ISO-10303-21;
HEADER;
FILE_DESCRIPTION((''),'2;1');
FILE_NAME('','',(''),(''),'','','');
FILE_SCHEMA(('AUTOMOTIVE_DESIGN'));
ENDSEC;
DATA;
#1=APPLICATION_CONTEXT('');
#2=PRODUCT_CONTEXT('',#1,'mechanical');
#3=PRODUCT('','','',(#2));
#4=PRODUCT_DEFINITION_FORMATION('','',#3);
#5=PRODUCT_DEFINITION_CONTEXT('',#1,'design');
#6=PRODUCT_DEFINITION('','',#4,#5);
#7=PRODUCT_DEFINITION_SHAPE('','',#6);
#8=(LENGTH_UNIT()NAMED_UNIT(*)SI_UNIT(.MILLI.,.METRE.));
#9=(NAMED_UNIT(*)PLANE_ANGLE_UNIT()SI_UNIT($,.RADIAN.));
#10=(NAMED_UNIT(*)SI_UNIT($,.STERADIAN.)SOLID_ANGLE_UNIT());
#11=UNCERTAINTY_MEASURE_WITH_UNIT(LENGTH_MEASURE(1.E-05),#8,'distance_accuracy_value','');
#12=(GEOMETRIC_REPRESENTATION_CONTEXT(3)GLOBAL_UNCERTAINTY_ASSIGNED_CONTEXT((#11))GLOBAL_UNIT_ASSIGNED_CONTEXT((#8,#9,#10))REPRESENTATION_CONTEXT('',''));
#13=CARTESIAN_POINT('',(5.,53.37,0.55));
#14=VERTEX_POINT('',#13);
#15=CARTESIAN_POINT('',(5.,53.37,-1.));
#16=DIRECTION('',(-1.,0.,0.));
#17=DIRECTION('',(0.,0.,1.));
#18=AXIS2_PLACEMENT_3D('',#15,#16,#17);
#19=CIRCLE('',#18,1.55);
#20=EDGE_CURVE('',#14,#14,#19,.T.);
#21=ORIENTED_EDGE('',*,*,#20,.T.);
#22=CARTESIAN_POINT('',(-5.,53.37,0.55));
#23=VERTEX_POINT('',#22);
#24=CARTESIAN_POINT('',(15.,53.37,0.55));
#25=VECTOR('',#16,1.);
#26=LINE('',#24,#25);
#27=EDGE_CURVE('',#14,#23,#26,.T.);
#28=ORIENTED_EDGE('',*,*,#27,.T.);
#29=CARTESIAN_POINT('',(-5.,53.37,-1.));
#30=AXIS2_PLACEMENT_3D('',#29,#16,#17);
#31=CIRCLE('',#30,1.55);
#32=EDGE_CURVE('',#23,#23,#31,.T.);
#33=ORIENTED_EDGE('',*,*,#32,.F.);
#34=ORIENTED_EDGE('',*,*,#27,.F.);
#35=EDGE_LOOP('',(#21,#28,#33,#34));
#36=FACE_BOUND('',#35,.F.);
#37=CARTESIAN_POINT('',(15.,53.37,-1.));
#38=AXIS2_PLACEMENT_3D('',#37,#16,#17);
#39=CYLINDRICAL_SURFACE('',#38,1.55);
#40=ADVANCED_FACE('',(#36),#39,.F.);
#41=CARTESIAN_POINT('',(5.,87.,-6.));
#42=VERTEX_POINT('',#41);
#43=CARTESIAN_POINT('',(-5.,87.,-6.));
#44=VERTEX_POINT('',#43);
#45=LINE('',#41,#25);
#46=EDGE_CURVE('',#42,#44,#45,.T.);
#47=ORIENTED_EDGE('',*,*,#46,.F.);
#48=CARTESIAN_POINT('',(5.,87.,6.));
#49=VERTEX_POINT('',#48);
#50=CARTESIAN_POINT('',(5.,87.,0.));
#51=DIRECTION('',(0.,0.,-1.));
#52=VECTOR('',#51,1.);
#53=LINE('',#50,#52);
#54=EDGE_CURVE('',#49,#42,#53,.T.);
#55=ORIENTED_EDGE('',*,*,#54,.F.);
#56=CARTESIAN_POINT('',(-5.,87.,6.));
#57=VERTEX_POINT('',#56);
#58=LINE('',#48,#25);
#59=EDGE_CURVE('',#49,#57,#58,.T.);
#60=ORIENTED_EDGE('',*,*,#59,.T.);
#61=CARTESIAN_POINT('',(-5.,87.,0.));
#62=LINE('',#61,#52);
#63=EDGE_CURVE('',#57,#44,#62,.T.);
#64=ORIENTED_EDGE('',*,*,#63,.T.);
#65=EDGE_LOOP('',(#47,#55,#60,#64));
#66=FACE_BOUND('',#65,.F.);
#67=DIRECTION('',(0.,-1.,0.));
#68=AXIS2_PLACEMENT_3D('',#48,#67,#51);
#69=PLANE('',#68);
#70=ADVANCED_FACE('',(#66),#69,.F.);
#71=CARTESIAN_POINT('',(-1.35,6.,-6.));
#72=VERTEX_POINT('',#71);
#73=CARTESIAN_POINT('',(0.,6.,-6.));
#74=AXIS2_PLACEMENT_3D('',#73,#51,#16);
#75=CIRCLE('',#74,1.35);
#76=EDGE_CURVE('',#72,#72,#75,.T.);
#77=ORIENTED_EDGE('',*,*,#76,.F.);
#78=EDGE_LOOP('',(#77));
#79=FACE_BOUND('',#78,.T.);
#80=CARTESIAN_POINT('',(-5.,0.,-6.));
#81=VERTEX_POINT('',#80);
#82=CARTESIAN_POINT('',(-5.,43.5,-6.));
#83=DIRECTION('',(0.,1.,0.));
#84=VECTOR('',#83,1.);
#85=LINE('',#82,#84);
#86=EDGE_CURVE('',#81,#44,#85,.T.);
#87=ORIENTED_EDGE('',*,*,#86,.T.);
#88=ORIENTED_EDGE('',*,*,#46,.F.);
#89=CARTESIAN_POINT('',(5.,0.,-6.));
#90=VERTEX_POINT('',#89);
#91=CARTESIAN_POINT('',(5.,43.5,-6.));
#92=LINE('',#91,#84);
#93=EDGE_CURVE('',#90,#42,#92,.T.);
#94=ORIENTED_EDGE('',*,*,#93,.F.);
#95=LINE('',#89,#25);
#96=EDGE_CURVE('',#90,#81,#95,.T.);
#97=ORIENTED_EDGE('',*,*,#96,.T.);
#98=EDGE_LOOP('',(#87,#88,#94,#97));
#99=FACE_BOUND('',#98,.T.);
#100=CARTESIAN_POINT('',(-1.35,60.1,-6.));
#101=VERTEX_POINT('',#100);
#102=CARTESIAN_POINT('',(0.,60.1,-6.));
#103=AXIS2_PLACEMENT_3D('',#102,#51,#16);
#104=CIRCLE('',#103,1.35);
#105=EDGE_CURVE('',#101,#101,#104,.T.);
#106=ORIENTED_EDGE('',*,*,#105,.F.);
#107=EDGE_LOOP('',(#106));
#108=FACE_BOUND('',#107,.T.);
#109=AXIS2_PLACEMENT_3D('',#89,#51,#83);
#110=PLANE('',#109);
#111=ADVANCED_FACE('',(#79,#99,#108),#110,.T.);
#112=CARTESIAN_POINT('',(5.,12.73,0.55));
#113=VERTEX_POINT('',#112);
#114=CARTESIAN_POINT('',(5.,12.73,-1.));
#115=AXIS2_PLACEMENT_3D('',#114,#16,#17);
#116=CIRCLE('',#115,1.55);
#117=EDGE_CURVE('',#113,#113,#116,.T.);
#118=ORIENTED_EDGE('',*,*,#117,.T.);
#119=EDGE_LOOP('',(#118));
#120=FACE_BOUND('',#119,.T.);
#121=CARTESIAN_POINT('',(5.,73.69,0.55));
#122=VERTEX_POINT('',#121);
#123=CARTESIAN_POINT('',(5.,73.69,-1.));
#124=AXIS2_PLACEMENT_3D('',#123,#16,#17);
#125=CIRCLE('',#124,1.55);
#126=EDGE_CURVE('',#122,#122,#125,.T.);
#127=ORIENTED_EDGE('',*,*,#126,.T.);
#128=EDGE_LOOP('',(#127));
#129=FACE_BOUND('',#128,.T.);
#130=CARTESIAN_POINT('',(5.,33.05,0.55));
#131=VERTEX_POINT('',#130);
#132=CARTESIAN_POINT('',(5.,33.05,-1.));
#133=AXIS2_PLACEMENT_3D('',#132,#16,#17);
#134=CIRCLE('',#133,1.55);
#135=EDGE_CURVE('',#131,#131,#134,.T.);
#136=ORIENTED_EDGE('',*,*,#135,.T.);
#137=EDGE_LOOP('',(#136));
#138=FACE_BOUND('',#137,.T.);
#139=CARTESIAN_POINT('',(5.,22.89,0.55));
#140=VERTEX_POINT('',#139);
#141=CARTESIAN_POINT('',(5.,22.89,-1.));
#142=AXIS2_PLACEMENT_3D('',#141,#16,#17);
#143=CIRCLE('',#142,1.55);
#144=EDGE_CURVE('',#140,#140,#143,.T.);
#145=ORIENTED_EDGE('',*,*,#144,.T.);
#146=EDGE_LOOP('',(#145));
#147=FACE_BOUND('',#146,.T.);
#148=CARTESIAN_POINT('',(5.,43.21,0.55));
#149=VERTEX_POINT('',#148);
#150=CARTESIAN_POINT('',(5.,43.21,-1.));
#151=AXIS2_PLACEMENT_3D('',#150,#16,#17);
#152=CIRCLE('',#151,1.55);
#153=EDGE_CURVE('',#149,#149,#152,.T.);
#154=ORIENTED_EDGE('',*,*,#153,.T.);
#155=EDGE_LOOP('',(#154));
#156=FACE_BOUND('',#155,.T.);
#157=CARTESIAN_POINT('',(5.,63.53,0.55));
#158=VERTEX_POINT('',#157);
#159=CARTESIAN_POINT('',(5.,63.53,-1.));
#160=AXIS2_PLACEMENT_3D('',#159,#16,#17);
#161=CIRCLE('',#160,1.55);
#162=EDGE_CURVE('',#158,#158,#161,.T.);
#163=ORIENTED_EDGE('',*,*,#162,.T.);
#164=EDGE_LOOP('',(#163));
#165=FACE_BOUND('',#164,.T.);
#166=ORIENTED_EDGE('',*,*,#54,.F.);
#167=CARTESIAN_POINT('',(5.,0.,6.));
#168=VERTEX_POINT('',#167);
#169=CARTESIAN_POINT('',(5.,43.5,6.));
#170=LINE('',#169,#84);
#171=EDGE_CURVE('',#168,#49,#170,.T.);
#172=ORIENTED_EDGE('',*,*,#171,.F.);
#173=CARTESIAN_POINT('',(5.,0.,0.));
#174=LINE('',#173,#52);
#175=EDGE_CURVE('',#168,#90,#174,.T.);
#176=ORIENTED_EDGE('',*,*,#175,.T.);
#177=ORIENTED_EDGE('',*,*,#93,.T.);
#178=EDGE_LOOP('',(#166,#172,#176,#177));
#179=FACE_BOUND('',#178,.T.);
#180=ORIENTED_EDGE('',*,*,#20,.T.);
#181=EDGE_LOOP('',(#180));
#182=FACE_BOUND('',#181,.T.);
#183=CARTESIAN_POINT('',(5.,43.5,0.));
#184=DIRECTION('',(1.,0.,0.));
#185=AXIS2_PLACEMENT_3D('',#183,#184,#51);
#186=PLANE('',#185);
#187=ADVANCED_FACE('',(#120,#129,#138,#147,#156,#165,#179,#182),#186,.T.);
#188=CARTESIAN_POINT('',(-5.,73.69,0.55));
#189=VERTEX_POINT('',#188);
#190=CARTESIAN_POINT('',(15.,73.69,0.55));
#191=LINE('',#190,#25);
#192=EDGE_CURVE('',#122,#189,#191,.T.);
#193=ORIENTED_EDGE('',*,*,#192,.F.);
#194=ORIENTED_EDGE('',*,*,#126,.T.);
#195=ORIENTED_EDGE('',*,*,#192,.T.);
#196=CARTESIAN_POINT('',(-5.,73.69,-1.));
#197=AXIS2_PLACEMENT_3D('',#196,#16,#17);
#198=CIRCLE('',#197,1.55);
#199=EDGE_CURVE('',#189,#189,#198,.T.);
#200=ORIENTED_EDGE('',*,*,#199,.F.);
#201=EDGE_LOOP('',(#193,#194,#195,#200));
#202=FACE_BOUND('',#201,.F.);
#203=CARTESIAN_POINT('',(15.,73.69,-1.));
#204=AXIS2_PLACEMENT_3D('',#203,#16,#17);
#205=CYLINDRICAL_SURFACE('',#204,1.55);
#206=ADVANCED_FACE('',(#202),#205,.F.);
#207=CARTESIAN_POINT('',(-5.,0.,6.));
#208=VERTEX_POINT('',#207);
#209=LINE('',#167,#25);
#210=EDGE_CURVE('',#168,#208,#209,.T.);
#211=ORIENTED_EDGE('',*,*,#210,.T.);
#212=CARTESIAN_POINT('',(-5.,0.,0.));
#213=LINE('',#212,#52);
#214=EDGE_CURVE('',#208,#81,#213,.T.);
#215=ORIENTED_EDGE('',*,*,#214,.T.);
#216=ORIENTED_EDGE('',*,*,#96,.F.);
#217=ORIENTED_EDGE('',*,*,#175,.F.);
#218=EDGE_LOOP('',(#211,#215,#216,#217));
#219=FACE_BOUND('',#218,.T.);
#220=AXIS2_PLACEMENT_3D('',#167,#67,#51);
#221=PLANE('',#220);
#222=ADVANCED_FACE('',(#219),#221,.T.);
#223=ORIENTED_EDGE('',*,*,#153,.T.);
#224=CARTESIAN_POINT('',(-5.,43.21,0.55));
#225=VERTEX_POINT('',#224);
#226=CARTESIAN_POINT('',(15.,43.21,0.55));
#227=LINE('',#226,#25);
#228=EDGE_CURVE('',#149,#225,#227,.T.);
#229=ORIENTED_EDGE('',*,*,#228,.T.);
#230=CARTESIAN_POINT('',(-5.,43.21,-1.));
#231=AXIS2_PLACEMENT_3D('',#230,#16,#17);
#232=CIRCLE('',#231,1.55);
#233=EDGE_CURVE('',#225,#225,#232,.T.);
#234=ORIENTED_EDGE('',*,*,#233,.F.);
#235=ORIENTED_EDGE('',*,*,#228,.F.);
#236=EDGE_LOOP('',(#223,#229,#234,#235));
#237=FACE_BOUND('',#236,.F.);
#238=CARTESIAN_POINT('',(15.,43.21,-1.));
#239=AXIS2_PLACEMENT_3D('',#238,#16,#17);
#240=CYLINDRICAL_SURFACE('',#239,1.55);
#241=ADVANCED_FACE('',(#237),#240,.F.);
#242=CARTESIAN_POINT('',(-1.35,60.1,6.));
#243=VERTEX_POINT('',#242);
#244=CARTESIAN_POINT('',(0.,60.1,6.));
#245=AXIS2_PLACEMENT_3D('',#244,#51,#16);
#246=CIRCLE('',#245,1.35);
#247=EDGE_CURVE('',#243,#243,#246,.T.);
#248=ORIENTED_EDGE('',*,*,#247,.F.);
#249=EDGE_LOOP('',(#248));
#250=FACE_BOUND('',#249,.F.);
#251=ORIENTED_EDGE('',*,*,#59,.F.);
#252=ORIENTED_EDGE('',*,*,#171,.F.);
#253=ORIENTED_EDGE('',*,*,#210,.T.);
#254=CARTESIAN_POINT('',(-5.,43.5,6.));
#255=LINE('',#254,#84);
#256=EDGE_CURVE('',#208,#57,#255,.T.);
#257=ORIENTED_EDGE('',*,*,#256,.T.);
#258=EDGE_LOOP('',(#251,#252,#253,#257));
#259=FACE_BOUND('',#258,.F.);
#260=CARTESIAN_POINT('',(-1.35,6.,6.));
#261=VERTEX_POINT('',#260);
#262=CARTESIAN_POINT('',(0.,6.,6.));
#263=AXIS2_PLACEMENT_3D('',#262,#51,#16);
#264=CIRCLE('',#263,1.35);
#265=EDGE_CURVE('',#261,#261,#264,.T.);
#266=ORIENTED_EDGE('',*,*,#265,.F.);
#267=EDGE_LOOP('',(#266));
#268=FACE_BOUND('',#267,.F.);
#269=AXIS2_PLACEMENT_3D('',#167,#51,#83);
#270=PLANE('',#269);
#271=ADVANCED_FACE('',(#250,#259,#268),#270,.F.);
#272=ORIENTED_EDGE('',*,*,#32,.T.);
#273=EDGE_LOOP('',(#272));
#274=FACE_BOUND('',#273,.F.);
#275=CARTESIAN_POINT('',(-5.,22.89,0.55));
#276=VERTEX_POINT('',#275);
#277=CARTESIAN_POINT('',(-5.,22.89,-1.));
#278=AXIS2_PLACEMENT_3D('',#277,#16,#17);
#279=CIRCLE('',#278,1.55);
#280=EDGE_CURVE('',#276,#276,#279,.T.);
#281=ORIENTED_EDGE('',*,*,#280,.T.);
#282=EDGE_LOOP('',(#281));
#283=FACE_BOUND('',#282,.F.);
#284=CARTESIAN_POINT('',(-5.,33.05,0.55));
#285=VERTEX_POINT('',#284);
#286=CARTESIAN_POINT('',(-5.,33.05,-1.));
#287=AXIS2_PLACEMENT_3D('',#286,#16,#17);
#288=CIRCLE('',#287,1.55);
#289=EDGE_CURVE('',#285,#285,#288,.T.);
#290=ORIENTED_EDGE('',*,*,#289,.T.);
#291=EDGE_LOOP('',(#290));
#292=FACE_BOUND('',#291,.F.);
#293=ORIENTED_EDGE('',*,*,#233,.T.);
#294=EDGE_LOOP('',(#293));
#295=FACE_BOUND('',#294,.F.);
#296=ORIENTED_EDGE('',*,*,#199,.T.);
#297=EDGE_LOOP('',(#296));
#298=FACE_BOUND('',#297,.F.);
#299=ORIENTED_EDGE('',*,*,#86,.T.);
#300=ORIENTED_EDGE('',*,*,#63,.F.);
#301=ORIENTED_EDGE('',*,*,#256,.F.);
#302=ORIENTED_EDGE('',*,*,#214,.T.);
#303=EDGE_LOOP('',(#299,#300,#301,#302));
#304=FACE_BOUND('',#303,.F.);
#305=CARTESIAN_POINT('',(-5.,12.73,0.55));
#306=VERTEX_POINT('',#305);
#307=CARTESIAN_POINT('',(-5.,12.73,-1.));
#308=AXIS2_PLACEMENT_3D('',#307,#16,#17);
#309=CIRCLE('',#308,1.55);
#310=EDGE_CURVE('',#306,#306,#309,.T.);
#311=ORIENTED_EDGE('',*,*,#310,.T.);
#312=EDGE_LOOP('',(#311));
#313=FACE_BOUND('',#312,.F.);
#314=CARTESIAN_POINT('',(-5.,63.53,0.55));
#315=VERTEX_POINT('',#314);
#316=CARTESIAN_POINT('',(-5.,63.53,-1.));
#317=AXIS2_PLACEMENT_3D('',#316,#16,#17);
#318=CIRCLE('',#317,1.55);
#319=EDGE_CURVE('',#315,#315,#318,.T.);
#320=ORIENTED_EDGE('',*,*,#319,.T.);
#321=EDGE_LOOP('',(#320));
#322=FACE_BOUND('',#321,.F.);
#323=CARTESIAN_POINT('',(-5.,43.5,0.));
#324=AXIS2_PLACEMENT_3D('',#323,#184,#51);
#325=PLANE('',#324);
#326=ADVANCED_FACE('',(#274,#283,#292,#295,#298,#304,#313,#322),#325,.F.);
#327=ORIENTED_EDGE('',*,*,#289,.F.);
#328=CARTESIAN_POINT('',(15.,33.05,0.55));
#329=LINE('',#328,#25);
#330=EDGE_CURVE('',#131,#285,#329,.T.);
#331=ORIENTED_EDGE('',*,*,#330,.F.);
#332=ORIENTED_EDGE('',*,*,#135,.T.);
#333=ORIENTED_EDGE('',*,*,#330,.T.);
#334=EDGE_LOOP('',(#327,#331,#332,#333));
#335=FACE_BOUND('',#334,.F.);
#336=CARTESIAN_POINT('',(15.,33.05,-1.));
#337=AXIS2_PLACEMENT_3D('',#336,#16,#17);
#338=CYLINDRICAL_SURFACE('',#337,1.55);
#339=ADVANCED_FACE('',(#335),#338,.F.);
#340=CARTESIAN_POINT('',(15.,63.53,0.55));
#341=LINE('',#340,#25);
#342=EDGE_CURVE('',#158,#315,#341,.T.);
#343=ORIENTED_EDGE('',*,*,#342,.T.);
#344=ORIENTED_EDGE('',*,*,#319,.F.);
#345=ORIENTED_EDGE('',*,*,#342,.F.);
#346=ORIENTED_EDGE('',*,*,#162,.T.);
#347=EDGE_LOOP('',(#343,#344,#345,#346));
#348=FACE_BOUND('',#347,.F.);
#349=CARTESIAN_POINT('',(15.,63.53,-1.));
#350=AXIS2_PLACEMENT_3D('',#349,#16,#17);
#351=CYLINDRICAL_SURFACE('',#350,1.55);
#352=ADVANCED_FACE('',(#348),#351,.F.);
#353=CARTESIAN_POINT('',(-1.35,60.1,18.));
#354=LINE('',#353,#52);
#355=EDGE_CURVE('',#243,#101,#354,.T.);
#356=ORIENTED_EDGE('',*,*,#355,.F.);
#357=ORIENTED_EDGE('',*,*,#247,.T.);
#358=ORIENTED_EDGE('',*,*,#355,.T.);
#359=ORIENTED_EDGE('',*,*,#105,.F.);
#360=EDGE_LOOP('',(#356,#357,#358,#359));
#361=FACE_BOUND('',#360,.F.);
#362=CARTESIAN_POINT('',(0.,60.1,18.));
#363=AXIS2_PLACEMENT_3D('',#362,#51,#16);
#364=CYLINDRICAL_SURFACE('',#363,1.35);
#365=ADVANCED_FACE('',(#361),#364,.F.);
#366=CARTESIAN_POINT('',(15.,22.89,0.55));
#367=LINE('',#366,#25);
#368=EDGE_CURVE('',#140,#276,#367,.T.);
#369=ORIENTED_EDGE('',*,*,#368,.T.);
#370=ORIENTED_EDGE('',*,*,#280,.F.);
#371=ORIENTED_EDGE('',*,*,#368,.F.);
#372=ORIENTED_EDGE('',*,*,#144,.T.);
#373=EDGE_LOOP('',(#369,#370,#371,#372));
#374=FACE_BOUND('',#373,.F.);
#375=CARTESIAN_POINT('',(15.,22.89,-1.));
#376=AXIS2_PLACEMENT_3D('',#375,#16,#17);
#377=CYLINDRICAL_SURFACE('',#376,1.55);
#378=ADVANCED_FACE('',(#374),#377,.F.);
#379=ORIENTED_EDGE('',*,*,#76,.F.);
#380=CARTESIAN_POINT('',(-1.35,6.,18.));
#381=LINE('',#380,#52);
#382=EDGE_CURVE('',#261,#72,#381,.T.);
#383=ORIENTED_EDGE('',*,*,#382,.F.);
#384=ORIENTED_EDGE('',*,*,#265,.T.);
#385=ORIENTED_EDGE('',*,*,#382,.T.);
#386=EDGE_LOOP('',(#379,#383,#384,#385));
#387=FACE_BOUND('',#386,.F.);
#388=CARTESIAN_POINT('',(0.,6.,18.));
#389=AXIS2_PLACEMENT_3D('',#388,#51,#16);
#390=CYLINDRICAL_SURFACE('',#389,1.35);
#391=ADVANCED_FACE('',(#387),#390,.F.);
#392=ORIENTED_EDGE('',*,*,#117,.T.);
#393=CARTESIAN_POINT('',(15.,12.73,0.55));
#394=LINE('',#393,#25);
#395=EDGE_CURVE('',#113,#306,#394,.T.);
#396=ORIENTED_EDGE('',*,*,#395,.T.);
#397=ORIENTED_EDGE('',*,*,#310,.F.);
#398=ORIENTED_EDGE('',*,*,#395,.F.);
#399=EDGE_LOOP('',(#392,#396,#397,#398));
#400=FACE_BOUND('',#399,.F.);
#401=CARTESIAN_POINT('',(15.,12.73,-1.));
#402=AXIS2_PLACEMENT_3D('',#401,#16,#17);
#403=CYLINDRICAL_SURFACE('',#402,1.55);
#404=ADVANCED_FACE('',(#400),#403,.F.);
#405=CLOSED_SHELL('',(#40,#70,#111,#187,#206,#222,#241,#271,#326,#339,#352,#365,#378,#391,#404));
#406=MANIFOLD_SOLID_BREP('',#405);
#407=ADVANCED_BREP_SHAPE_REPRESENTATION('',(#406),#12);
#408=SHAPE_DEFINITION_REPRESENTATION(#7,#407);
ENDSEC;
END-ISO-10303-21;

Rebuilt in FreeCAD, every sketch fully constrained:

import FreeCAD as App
import Part
import Sketcher

V = App.Vector
Q = App.Units.Quantity

doc = App.newDocument("Part")
body = doc.addObject("PartDesign::Body", "Body")

# Sketch on YZ plane
sketch1 = doc.addObject("Sketcher::SketchObject", "Sketch")
body.addObject(sketch1)
sketch1.AttachmentSupport = (doc.YZ_Plane, [""])
sketch1.MapMode = "FlatFace"
sketch1.AttachmentOffset = App.Placement(V(0, 0, 5), App.Rotation())
sketch1.addGeometry(Part.LineSegment(V(87, 6, 0), V(0, 6, 0)), False)
sketch1.addGeometry(Part.LineSegment(V(0, 6, 0), V(0, -6, 0)), False)
sketch1.addGeometry(Part.LineSegment(V(0, -6, 0), V(87, -6, 0)), False)
sketch1.addGeometry(Part.LineSegment(V(87, -6, 0), V(87, 6, 0)), False)
sketch1.addConstraint(Sketcher.Constraint("Coincident", 0, 2, 1, 1))
sketch1.addConstraint(Sketcher.Constraint("Coincident", 1, 2, 2, 1))
sketch1.addConstraint(Sketcher.Constraint("Coincident", 2, 2, 3, 1))
sketch1.addConstraint(Sketcher.Constraint("Coincident", 3, 2, 0, 1))
sketch1.addConstraint(Sketcher.Constraint("Horizontal", 0))
sketch1.addConstraint(Sketcher.Constraint("Vertical", 1))
sketch1.addConstraint(Sketcher.Constraint("Horizontal", 2))
sketch1.addConstraint(Sketcher.Constraint("Vertical", 3))
sketch1.addConstraint(Sketcher.Constraint("Symmetric", 0, 2, 1, 2, -1, 1))
sketch1.addConstraint(Sketcher.Constraint("DistanceX", 0, 2, 0, 1, Q("87 mm")))
sketch1.addConstraint(Sketcher.Constraint("DistanceY", 1, 2, 1, 1, Q("12 mm")))
pad1 = doc.addObject("PartDesign::Pad", "Pad")
body.addObject(pad1)
pad1.Profile = sketch1
pad1.Length = 10
pad1.Reversed = True

# Sketch on YZ plane
sketch2 = doc.addObject("Sketcher::SketchObject", "Sketch001")
body.addObject(sketch2)
sketch2.AttachmentSupport = (doc.YZ_Plane, [""])
sketch2.MapMode = "FlatFace"
sketch2.AttachmentOffset = App.Placement(V(0, 0, 5), App.Rotation())
sketch2.addGeometry(Part.Circle(V(63.53, -1, 0), V(0, 0, 1), 1.55), False)
sketch2.addGeometry(Part.Circle(V(43.21, -1, 0), V(0, 0, 1), 1.55), False)
sketch2.addGeometry(Part.Circle(V(22.89, -1, 0), V(0, 0, 1), 1.55), False)
sketch2.addGeometry(Part.Circle(V(53.37, -1, 0), V(0, 0, 1), 1.55), False)
sketch2.addGeometry(Part.Circle(V(33.05, -1, 0), V(0, 0, 1), 1.55), False)
sketch2.addGeometry(Part.Circle(V(12.73, -1, 0), V(0, 0, 1), 1.55), False)
sketch2.addGeometry(Part.Circle(V(73.69, -1, 0), V(0, 0, 1), 1.55), False)
sketch2.addConstraint(Sketcher.Constraint("Equal", 0, 1))
sketch2.addConstraint(Sketcher.Constraint("Equal", 1, 2))
sketch2.addConstraint(Sketcher.Constraint("Equal", 2, 3))
sketch2.addConstraint(Sketcher.Constraint("Equal", 3, 4))
sketch2.addConstraint(Sketcher.Constraint("Equal", 4, 5))
sketch2.addConstraint(Sketcher.Constraint("Equal", 5, 6))
sketch2.addConstraint(Sketcher.Constraint("Horizontal", 0, 3, 1, 3))
sketch2.addConstraint(Sketcher.Constraint("Horizontal", 1, 3, 2, 3))
sketch2.addConstraint(Sketcher.Constraint("Horizontal", 2, 3, 3, 3))
sketch2.addConstraint(Sketcher.Constraint("Horizontal", 3, 3, 4, 3))
sketch2.addConstraint(Sketcher.Constraint("Horizontal", 4, 3, 5, 3))
sketch2.addConstraint(Sketcher.Constraint("Horizontal", 5, 3, 6, 3))
sketch2.addConstraint(Sketcher.Constraint("Diameter", 0, Q("3.1 mm")))
sketch2.addConstraint(Sketcher.Constraint("DistanceY", 0, 3, -1, 1, Q("1 mm")))
sketch2.addConstraint(Sketcher.Constraint("DistanceX", 5, 3, 0, 3, Q("50.8 mm")))
sketch2.addConstraint(Sketcher.Constraint("DistanceX", 2, 3, 6, 3, Q("50.8 mm")))
sketch2.addConstraint(Sketcher.Constraint("DistanceX", -1, 1, 0, 3, Q("63.53 mm")))
sketch2.addConstraint(Sketcher.Constraint("DistanceX", -1, 1, 1, 3, Q("43.21 mm")))
sketch2.addConstraint(Sketcher.Constraint("DistanceX", -1, 1, 2, 3, Q("22.89 mm")))
sketch2.addConstraint(Sketcher.Constraint("DistanceX", -1, 1, 3, 3, Q("53.37 mm")))
sketch2.addConstraint(Sketcher.Constraint("DistanceX", -1, 1, 4, 3, Q("33.05 mm")))
doc.recompute()
hole = doc.addObject("PartDesign::Hole", "Hole")
body.addObject(hole)
hole.Profile = sketch2
hole.ThreadType = "None"
hole.Diameter = 3.1
hole.DepthType = "Dimension"
hole.Depth = 10
hole.DrillPoint = "Flat"

# Sketch on XY plane
sketch3 = doc.addObject("Sketcher::SketchObject", "Sketch002")
body.addObject(sketch3)
sketch3.AttachmentSupport = (doc.XY_Plane, [""])
sketch3.MapMode = "FlatFace"
sketch3.AttachmentOffset = App.Placement(V(0, 0, 6), App.Rotation())
sketch3.addGeometry(Part.Circle(V(0, 60.1, 0), V(0, 0, 1), 1.35), False)
sketch3.addGeometry(Part.Circle(V(0, 6, 0), V(0, 0, 1), 1.35), False)
sketch3.addConstraint(Sketcher.Constraint("Equal", 0, 1))
sketch3.addConstraint(Sketcher.Constraint("PointOnObject", 0, 3, -2))
sketch3.addConstraint(Sketcher.Constraint("PointOnObject", 1, 3, -2))
sketch3.addConstraint(Sketcher.Constraint("Diameter", 0, Q("2.7 mm")))
sketch3.addConstraint(Sketcher.Constraint("DistanceY", -1, 1, 1, 3, Q("6 mm")))
sketch3.addConstraint(Sketcher.Constraint("DistanceY", -1, 1, 0, 3, Q("60.1 mm")))
doc.recompute()
hole2 = doc.addObject("PartDesign::Hole", "Hole001")
body.addObject(hole2)
hole2.Profile = sketch3
hole2.ThreadType = "None"
hole2.Diameter = 2.7
hole2.DepthType = "Dimension"
hole2.Depth = 12
hole2.DrillPoint = "Flat"

doc.recompute()
